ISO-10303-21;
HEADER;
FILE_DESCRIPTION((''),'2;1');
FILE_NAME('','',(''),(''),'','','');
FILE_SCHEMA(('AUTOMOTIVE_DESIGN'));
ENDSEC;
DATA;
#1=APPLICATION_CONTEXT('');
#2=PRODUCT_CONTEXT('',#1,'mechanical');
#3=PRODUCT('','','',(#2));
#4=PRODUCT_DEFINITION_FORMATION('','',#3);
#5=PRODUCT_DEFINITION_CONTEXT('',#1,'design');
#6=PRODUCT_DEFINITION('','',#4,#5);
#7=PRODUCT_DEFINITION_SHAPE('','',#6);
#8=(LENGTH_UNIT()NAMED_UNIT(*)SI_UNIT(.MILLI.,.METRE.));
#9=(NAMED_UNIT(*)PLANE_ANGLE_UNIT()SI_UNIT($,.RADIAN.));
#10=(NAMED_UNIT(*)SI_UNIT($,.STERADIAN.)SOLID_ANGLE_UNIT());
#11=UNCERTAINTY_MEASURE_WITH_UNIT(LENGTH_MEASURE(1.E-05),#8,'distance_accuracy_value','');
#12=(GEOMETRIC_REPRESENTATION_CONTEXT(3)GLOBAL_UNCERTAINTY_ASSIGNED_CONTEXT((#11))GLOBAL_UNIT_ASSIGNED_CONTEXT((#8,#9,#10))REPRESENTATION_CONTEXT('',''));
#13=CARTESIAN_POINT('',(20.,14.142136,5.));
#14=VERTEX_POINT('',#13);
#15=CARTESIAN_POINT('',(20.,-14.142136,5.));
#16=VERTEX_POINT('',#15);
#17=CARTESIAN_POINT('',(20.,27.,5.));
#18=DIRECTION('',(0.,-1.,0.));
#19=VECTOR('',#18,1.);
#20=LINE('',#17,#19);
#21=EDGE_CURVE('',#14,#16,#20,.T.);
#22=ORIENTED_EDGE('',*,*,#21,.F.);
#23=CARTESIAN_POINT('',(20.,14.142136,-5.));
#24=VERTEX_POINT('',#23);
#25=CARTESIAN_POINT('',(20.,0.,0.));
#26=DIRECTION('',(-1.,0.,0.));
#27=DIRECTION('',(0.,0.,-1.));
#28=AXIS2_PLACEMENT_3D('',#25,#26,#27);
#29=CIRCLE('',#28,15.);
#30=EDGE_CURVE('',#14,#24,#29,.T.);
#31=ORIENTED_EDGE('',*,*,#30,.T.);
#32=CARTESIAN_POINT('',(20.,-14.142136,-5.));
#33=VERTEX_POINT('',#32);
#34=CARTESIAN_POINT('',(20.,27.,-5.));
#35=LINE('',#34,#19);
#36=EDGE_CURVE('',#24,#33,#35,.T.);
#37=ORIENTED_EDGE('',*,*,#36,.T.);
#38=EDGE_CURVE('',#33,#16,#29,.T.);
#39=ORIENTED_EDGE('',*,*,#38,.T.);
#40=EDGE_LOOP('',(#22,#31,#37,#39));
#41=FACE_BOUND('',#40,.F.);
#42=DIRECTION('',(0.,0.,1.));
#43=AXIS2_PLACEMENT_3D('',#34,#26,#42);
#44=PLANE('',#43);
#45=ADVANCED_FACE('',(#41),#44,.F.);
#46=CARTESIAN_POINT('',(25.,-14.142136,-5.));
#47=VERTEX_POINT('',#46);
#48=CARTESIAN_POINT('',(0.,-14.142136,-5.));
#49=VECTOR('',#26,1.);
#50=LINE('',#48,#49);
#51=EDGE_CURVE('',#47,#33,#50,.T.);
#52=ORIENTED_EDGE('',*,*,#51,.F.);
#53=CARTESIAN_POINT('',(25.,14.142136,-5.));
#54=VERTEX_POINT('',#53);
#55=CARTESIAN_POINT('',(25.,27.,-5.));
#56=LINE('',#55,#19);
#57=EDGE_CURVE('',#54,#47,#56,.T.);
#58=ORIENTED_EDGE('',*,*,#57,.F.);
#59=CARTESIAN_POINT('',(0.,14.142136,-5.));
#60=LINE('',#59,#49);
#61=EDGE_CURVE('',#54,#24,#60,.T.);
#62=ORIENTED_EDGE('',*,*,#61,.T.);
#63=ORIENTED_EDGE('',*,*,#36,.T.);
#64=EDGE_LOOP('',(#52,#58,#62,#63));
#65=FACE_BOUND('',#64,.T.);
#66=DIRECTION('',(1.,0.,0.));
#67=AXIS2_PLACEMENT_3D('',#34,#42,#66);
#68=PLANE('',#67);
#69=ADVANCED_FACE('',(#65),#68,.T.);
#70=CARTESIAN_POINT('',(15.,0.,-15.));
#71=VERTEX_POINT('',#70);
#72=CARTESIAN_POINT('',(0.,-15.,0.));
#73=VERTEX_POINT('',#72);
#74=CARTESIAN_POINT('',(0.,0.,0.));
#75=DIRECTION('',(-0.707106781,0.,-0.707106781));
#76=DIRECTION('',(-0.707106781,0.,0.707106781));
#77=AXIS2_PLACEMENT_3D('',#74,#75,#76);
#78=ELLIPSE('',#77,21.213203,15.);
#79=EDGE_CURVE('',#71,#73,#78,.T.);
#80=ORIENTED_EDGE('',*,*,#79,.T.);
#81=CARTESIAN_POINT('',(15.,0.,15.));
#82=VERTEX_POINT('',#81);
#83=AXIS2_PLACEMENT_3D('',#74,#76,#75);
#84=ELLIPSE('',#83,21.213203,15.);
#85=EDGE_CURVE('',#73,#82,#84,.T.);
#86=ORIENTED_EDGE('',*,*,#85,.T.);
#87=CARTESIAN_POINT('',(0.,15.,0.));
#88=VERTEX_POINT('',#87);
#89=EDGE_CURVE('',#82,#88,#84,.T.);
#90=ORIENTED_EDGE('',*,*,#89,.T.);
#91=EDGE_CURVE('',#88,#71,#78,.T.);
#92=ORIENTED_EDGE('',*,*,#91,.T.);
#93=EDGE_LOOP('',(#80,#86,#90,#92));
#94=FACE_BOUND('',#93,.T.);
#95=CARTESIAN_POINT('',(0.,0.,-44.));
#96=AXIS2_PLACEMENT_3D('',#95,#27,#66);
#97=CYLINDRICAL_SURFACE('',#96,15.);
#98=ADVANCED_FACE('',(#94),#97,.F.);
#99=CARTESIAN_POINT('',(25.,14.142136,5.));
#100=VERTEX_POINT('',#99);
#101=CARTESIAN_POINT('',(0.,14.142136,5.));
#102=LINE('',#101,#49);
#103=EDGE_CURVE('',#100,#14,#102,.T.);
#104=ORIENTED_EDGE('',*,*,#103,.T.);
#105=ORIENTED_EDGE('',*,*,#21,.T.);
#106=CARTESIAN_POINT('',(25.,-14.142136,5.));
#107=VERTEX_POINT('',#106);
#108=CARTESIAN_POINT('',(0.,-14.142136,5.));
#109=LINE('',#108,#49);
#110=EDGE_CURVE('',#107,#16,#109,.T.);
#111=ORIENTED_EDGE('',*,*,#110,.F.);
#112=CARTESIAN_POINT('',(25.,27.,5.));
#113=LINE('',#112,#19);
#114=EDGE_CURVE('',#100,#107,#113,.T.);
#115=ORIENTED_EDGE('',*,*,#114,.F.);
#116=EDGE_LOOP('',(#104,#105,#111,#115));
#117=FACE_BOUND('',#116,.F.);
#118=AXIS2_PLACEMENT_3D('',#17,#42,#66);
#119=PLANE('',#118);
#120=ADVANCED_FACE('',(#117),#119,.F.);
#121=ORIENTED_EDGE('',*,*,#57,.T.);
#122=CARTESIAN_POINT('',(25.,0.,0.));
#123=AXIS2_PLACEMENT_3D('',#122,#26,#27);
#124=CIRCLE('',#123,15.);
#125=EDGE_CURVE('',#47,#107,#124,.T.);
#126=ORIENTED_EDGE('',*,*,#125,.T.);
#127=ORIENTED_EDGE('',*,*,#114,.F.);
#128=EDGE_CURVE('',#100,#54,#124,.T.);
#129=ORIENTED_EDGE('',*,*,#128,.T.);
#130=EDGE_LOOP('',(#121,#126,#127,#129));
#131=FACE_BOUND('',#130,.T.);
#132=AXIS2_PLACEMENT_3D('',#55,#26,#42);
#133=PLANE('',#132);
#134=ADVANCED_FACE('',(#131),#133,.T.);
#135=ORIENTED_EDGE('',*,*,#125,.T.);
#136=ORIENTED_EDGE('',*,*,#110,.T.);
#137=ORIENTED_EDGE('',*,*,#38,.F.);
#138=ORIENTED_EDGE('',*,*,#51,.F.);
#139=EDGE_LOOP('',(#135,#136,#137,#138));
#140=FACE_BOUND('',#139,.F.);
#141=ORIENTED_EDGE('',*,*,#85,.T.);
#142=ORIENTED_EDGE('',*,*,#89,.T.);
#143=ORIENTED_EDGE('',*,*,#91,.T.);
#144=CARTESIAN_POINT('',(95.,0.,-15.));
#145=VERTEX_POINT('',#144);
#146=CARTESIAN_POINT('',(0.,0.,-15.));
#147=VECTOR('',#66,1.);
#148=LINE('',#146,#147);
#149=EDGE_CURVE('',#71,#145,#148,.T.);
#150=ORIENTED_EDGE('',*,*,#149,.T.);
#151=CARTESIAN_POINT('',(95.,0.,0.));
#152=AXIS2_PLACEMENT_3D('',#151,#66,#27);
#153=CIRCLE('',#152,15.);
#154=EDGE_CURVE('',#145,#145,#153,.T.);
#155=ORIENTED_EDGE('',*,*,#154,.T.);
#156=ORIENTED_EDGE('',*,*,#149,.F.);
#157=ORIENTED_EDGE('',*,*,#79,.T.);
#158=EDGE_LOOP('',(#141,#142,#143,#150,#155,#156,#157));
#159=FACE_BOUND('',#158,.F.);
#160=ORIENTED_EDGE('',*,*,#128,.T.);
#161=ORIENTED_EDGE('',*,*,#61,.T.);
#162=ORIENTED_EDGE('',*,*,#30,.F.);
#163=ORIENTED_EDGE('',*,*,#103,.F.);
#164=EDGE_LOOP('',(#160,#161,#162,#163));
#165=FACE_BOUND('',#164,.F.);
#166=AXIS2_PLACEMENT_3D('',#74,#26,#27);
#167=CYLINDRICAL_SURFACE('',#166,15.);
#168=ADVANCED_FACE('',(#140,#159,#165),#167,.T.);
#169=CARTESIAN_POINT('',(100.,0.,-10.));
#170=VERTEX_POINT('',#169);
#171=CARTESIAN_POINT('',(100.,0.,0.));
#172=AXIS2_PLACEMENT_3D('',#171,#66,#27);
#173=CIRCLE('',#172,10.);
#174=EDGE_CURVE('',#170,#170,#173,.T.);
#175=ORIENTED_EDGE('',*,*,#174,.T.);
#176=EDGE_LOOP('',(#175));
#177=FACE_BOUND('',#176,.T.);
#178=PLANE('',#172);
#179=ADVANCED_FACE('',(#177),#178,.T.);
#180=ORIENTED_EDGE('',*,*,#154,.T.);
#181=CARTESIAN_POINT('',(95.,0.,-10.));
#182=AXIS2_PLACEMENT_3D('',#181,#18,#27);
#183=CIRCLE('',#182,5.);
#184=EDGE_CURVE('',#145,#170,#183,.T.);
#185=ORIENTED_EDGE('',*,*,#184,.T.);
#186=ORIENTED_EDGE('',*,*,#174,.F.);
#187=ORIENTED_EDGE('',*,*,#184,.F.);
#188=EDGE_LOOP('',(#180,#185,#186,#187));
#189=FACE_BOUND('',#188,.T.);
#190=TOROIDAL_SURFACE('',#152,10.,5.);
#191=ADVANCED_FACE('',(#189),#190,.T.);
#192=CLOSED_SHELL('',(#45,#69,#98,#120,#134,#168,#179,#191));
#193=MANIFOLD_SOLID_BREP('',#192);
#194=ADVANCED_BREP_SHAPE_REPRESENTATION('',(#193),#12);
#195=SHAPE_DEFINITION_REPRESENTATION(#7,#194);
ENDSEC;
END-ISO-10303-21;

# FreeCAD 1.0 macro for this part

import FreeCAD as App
import Part
import Sketcher
Q = App.Units.Quantity


def edges_at(feature, points):
    """Names of the edges that pass closest to the given points."""
    edges = feature.Shape.Edges
    near = lambda p: min(range(len(edges)), key=lambda i: edges[i].distToShape(Part.Vertex(*p))[0])
    return sorted({f"Edge{near(p) + 1}" for p in points})


def add_polygon(sketch, points):
    """Adds a closed chain of lines whose ends are joined by coincident constraints."""
    first, n = sketch.GeometryCount, len(points)
    for a, b in zip(points, points[1:] + points[:1]):
        sketch.addGeometry(Part.LineSegment(App.Vector(*a, 0), App.Vector(*b, 0)), False)
    for i in range(n):
        sketch.addConstraint(Sketcher.Constraint("Coincident", first + i, 2, first + (i + 1) % n, 1))

doc = App.newDocument("Part")
params = doc.addObject("Spreadsheet::Sheet", "Params")
for row, (alias, value) in enumerate([
    ("sketch1_width", "5 mm"),
    ("sketch1_height", "10 mm"),
    ("pad1_length", "48 mm"),
    ("sketch2_diameter", "30 mm"),
    ("pad2_length", "100 mm"),
    ("sketch3_diameter", "30 mm"),
    ("pad3_length", "100 mm"),
    ("fillet_radius", "5 mm"),
], start=1):
    params.set(f"A{row}", alias)
    params.set(f"B{row}", "=" + value)
    params.setAlias(f"B{row}", alias)

body = doc.addObject("PartDesign::Body", "Body")

# Sketch on XY plane
sketch1 = body.newObject("Sketcher::SketchObject", "Sketch")
sketch1.AttachmentSupport = (doc.getObject("XY_Plane"), [""])
sketch1.MapMode = "FlatFace"
add_polygon(sketch1, [(0, 10), (0, 0), (5, 0), (5, 10)])  # lines 0-3
sketch1.addConstraint([
    Sketcher.Constraint("Vertical", 0),
    Sketcher.Constraint("Horizontal", 1),
    Sketcher.Constraint("Vertical", 2),
    Sketcher.Constraint("Horizontal", 3),
    Sketcher.Constraint("Coincident", 0, 2, -1, 1),
    Sketcher.Constraint("DistanceX", 1, 1, 1, 2, Q("5 mm")),
    Sketcher.Constraint("DistanceY", 0, 2, 0, 1, Q("10 mm")),
])
sketch1.setExpression("Constraints[9]", "Params.sketch1_width")
sketch1.setExpression("Constraints[10]", "Params.sketch1_height")
pad1 = body.newObject("PartDesign::Pad", "Pad")
pad1.Profile = sketch1
pad1.setExpression("Length", "Params.pad1_length")
body2 = doc.addObject("PartDesign::Body", "Body001")
doc.recompute()

body.Placement = App.Placement(App.Vector(0, 0, 0), App.Rotation(App.Vector(1, 0, 0), 90))
boolean = body2.newObject("PartDesign::Boolean", "Boolean")
boolean.Type = "Fuse"
boolean.addObjects([body])
body3 = doc.addObject("PartDesign::Body", "Body002")
doc.recompute()

body2.Placement = App.Placement(App.Vector(20, 27, -5), App.Rotation(App.Vector(0, 0, 1), 0))
boolean2 = body3.newObject("PartDesign::Boolean", "Boolean001")
boolean2.Type = "Fuse"
boolean2.addObjects([body2])
body4 = doc.addObject("PartDesign::Body", "Body003")

# Sketch on XY plane
sketch2 = body4.newObject("Sketcher::SketchObject", "Sketch001")
sketch2.AttachmentSupport = (doc.getObject("XY_Plane003"), [""])
sketch2.MapMode = "FlatFace"
sketch2.AttachmentOffset = App.Placement(App.Vector(0, 0, -44), App.Rotation())
sketch2.addGeometry(Part.Circle(App.Vector(0, 0, 0), App.Vector(0, 0, 1), 15), False)
sketch2.addConstraint([
    Sketcher.Constraint("Coincident", 0, 3, -1, 1),
    Sketcher.Constraint("Diameter", 0, Q("30 mm")),
])
sketch2.setExpression("Constraints[1]", "Params.sketch2_diameter")
pad2 = body4.newObject("PartDesign::Pad", "Pad001")
pad2.Profile = sketch2
pad2.setExpression("Length", "Params.pad2_length")
body5 = doc.addObject("PartDesign::Body", "Body004")

# Sketch on XY plane
sketch3 = body5.newObject("Sketcher::SketchObject", "Sketch002")
sketch3.AttachmentSupport = (doc.getObject("XY_Plane004"), [""])
sketch3.MapMode = "FlatFace"
sketch3.addGeometry(Part.Circle(App.Vector(0, 0, 0), App.Vector(0, 0, 1), 15), False)
sketch3.addConstraint([
    Sketcher.Constraint("Coincident", 0, 3, -1, 1),
    Sketcher.Constraint("Diameter", 0, Q("30 mm")),
])
sketch3.setExpression("Constraints[1]", "Params.sketch3_diameter")
pad3 = body5.newObject("PartDesign::Pad", "Pad002")
pad3.Profile = sketch3
pad3.setExpression("Length", "Params.pad3_length")
body6 = doc.addObject("PartDesign::Body", "Body005")
doc.recompute()

body5.Placement = App.Placement(App.Vector(0, 0, 0), App.Rotation(App.Vector(0, 1, 0), 90))
boolean3 = body6.newObject("PartDesign::Boolean", "Boolean002")
boolean3.Type = "Fuse"
boolean3.addObjects([body5])
doc.recompute()

boolean4 = body6.newObject("PartDesign::Boolean", "Boolean003")
boolean4.Type = "Cut"
boolean4.addObjects([body4])
doc.recompute()

boolean5 = body6.newObject("PartDesign::Boolean", "Boolean004")
boolean5.Type = "Cut"
boolean5.addObjects([body3])
doc.recompute()

fillet = body6.newObject("PartDesign::Fillet", "Fillet")
fillet.Base = (boolean5, edges_at(boolean5, [(100, 0, 15)]))
fillet.setExpression("Radius", "Params.fillet_radius")

doc.recompute()
